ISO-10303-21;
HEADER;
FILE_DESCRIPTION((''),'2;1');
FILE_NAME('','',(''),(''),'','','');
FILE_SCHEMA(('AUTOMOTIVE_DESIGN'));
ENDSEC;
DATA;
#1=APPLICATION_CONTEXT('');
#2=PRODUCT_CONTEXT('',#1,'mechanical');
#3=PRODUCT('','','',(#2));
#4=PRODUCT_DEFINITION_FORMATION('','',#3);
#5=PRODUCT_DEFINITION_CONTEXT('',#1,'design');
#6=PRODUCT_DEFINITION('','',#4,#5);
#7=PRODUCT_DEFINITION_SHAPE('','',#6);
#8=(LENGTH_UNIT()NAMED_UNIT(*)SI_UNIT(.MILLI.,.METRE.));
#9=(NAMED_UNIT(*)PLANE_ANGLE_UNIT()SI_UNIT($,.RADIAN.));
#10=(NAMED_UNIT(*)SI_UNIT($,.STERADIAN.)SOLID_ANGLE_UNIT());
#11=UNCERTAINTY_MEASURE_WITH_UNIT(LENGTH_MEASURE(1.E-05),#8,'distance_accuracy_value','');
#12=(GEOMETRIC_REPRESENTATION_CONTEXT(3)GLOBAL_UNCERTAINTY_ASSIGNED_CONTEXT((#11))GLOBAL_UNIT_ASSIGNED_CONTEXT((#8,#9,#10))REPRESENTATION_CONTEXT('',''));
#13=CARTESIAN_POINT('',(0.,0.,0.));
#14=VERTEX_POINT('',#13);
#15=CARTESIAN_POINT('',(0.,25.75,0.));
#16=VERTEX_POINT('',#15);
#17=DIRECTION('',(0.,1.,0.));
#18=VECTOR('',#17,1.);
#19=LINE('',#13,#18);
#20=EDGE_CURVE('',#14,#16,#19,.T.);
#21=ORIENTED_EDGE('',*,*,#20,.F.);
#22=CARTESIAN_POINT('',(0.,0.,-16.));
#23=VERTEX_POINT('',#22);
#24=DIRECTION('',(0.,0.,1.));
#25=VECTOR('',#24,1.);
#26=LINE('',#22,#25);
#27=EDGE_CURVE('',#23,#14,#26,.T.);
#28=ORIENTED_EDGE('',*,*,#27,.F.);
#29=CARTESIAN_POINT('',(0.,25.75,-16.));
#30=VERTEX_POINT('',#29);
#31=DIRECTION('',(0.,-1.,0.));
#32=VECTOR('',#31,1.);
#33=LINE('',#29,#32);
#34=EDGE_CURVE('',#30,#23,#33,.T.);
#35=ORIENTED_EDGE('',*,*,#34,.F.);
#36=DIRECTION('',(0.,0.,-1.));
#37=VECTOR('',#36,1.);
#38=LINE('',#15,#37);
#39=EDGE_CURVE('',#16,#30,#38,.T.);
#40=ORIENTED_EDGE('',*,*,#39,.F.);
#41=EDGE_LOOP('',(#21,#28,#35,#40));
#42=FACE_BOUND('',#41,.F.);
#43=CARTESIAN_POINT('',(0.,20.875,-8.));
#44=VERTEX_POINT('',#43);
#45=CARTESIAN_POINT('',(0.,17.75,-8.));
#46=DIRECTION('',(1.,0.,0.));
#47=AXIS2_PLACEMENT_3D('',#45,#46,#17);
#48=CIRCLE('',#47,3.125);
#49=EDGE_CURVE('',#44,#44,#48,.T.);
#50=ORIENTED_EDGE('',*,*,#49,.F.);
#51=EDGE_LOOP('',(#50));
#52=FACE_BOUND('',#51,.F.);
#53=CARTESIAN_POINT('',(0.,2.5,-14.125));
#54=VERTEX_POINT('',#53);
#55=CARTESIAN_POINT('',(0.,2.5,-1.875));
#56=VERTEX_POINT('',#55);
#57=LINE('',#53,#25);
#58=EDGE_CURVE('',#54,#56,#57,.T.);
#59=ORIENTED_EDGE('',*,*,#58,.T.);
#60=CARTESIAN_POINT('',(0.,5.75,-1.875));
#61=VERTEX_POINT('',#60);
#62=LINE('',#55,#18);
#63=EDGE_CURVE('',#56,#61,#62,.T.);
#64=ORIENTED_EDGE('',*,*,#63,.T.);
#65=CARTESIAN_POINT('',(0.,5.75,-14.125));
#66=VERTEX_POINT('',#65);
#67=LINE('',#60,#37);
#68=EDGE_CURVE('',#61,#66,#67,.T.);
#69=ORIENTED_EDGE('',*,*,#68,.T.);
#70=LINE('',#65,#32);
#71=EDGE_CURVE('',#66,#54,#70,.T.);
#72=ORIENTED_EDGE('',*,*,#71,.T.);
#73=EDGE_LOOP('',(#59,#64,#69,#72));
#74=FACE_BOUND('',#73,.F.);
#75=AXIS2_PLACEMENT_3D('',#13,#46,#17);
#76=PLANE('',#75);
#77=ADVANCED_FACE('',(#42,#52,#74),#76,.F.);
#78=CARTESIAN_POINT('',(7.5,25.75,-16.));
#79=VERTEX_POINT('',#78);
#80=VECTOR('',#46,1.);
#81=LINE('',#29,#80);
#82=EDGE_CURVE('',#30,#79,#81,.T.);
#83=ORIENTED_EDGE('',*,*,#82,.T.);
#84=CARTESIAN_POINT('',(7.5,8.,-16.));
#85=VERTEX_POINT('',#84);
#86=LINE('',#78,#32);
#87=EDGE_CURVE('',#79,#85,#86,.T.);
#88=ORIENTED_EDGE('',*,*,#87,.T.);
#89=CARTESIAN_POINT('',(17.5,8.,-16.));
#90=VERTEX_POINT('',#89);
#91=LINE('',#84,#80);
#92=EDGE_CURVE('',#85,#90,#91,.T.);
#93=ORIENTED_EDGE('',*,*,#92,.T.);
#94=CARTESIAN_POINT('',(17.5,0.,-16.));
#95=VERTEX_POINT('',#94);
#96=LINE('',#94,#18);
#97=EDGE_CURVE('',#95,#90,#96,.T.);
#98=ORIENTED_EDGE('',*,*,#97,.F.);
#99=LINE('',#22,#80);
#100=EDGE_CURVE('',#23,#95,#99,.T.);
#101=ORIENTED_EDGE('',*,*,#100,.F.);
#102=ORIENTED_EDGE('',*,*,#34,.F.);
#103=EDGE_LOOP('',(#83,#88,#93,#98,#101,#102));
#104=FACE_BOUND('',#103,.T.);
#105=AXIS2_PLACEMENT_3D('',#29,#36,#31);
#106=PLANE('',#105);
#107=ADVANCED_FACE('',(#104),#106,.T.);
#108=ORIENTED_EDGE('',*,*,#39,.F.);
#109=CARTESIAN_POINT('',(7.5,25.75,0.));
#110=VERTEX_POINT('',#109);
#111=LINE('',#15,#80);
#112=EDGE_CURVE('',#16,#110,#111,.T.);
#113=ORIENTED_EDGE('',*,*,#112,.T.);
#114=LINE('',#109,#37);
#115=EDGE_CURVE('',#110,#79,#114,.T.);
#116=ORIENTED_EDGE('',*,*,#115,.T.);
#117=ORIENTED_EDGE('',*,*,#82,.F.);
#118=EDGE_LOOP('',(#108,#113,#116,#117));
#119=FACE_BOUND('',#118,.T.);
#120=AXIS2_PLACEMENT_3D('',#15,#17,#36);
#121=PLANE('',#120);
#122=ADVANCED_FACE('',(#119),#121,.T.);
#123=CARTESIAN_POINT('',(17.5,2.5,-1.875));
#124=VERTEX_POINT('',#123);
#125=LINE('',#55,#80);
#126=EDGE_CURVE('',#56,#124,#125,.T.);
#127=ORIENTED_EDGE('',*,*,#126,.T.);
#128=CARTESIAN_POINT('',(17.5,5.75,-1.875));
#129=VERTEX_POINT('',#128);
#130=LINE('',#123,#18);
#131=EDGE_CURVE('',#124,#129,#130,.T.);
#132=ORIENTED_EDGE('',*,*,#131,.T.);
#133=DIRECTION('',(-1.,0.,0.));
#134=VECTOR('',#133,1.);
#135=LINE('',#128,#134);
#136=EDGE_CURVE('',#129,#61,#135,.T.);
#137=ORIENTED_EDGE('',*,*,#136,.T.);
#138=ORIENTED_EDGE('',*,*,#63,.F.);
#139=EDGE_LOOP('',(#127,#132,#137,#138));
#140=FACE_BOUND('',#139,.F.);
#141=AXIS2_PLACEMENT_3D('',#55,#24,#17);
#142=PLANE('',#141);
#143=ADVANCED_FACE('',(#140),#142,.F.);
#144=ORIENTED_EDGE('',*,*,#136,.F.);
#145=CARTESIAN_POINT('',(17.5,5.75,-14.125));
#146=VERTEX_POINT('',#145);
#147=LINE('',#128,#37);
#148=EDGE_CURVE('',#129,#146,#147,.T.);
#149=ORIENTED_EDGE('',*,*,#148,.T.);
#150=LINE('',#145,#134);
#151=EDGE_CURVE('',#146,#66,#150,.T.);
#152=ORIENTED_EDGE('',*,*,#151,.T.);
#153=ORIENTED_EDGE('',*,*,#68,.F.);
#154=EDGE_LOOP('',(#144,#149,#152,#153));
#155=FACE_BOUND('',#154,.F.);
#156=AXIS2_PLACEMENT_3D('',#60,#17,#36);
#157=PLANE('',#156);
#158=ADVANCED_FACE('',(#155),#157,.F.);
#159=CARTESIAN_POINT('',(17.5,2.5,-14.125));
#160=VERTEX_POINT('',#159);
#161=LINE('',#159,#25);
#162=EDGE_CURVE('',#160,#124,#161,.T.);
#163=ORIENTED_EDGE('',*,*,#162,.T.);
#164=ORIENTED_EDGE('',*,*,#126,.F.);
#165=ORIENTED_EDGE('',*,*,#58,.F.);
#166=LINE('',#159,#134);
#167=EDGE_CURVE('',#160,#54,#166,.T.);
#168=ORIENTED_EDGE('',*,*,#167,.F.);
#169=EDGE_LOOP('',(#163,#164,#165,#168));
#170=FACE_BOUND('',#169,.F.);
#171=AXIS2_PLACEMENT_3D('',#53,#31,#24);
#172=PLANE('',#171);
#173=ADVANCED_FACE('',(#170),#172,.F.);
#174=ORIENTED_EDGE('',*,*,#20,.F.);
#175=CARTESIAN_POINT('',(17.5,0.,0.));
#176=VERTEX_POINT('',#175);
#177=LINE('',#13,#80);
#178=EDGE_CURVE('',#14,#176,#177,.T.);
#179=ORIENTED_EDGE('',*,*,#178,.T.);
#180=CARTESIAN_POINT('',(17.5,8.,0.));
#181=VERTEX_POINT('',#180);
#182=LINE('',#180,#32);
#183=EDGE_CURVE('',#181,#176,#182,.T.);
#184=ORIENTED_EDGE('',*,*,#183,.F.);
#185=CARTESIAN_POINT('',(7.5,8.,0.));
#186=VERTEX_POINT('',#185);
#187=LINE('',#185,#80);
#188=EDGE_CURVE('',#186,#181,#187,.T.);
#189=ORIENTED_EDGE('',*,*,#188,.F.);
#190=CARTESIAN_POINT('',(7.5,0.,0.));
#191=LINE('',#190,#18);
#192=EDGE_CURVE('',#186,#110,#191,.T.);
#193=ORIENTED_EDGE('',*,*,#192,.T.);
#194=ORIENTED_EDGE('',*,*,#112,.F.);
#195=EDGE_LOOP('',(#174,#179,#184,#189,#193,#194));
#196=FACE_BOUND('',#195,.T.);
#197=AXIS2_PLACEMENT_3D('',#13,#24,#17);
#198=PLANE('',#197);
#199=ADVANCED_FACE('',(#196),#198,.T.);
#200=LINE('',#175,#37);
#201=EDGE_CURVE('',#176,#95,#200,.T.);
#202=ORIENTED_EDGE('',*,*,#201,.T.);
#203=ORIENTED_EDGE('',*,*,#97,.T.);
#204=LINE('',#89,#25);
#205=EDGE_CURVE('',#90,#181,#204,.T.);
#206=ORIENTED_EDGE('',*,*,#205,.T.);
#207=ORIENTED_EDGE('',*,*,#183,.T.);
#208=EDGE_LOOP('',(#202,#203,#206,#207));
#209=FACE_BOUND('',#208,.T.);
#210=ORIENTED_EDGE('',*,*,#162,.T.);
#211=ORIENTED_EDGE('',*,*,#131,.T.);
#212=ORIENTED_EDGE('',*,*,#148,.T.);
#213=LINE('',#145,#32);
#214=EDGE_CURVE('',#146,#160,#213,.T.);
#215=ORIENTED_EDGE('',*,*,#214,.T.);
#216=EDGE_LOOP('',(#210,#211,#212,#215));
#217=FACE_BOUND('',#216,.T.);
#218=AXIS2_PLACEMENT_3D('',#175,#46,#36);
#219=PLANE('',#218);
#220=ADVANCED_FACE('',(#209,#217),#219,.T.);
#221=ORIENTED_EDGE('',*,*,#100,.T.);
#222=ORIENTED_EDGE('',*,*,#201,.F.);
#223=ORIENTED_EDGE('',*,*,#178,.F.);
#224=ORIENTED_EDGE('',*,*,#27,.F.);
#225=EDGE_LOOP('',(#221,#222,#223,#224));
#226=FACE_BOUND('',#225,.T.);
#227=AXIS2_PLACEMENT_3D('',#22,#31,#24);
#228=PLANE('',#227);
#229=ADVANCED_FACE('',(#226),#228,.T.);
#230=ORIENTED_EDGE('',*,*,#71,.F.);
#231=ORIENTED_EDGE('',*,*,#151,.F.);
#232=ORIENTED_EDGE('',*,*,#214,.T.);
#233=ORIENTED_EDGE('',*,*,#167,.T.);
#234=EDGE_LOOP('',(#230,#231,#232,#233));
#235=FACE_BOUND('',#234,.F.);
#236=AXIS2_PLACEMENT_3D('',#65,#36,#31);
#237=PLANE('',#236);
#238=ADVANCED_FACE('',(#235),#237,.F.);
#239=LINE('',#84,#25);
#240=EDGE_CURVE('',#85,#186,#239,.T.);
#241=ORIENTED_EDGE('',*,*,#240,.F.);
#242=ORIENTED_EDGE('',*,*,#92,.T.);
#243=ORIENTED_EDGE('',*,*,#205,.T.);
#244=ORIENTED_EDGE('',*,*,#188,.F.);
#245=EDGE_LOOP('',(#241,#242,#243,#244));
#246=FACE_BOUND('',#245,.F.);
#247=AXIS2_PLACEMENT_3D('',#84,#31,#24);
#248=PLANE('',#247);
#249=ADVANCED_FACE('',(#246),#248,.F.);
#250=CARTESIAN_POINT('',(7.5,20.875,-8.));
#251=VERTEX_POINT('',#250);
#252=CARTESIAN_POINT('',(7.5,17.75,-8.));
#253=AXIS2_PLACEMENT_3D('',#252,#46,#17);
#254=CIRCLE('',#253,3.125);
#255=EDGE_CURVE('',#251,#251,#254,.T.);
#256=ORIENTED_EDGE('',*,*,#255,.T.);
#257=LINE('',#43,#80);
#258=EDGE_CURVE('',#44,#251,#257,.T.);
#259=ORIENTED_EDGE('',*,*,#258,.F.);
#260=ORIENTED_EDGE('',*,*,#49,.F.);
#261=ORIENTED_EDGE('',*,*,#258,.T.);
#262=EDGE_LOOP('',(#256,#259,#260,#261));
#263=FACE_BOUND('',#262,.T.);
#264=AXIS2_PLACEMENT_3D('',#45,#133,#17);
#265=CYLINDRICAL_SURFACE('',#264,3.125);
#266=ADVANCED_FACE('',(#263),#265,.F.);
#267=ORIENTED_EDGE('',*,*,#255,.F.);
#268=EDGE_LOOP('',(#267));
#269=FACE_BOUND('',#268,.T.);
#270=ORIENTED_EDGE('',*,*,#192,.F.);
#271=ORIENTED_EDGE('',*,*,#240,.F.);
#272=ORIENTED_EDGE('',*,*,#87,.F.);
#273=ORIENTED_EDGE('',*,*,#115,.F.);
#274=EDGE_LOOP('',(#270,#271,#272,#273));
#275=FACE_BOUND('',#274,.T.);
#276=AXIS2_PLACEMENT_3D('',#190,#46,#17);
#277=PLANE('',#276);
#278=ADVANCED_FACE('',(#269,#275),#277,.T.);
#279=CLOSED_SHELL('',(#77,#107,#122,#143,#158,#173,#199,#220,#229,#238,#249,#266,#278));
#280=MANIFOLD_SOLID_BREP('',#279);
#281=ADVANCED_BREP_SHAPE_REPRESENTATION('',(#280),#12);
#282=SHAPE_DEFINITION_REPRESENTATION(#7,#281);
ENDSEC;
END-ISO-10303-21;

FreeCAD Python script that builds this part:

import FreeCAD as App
import Part
import Sketcher
from FreeCAD import Vector
Q = App.Units.Quantity

doc = App.newDocument("Part")
body = doc.addObject("PartDesign::Body", "Body")

sketch1 = doc.addObject("Sketcher::SketchObject", "Sketch")
body.addObject(sketch1)
sketch1.AttachmentSupport = (doc.YZ_Plane, [""])
sketch1.MapMode = "FlatFace"
sketch1.addGeometry([
    Part.LineSegment(Vector(25.8, 0, 0), Vector(0, 0, 0)),
    Part.LineSegment(Vector(0, 0, 0), Vector(0, -16, 0)),
    Part.LineSegment(Vector(0, -16, 0), Vector(25.8, -16, 0)),
    Part.LineSegment(Vector(25.8, -16, 0), Vector(25.8, 0, 0)),
    Part.LineSegment(Vector(2.5, -14.1, 0), Vector(2.5, -1.9, 0)),
    Part.LineSegment(Vector(2.5, -1.9, 0), Vector(5.8, -1.9, 0)),
    Part.LineSegment(Vector(5.8, -1.9, 0), Vector(5.8, -14.1, 0)),
    Part.LineSegment(Vector(5.8, -14.1, 0), Vector(2.5, -14.1, 0)),
    Part.Circle(Vector(17.8, -8, 0), Vector(0, 0, 1), 3.1),
], False)
sketch1.addConstraint([
    Sketcher.Constraint("Coincident", 0, 2, 1, 1),
    Sketcher.Constraint("Coincident", 1, 2, 2, 1),
    Sketcher.Constraint("Coincident", 2, 2, 3, 1),
    Sketcher.Constraint("Coincident", 3, 2, 0, 1),
    Sketcher.Constraint("Coincident", 4, 2, 5, 1),
    Sketcher.Constraint("Coincident", 5, 2, 6, 1),
    Sketcher.Constraint("Coincident", 6, 2, 7, 1),
    Sketcher.Constraint("Coincident", 7, 2, 4, 1),
    Sketcher.Constraint("Horizontal", 0),
    Sketcher.Constraint("Vertical", 1),
    Sketcher.Constraint("Horizontal", 2),
    Sketcher.Constraint("Vertical", 3),
    Sketcher.Constraint("Vertical", 4),
    Sketcher.Constraint("Horizontal", 5),
    Sketcher.Constraint("Vertical", 6),
    Sketcher.Constraint("Horizontal", 7),
    Sketcher.Constraint("Coincident", 0, 2, -1, 1),
    Sketcher.Constraint("Diameter", 8, Q("6.25 mm")),
    Sketcher.Constraint("DistanceY", 1, 2, 1, 1, Q("16 mm")),
    Sketcher.Constraint("DistanceX", 0, 2, 0, 1, Q("25.75 mm")),
    Sketcher.Constraint("DistanceX", 5, 1, 5, 2, Q("3.25 mm")),
    Sketcher.Constraint("DistanceX", -1, 1, 4, 2, Q("2.5 mm")),
    Sketcher.Constraint("DistanceY", 8, 3, -1, 1, Q("8 mm")),
    Sketcher.Constraint("DistanceY", 4, 2, -1, 1, Q("1.875 mm")),
    Sketcher.Constraint("DistanceX", 8, 3, 2, 2, Q("8 mm")),
    Sketcher.Constraint("DistanceY", 1, 2, 6, 2, Q("1.875 mm")),
])
pad1 = doc.addObject("PartDesign::Pad", "Pad")
body.addObject(pad1)
pad1.Profile = sketch1
pad1.Length = 7.5

sketch2 = doc.addObject("Sketcher::SketchObject", "Sketch001")
body.addObject(sketch2)
sketch2.AttachmentSupport = (doc.YZ_Plane, [""])
sketch2.MapMode = "FlatFace"
sketch2.AttachmentOffset = App.Placement(Vector(0, 0, 7.5), App.Rotation())
sketch2.addGeometry([
    Part.LineSegment(Vector(8, 0, 0), Vector(0, 0, 0)),
    Part.LineSegment(Vector(0, 0, 0), Vector(0, -16, 0)),
    Part.LineSegment(Vector(0, -16, 0), Vector(8, -16, 0)),
    Part.LineSegment(Vector(8, -16, 0), Vector(8, 0, 0)),
    Part.LineSegment(Vector(2.5, -14.1, 0), Vector(2.5, -1.9, 0)),
    Part.LineSegment(Vector(2.5, -1.9, 0), Vector(5.8, -1.9, 0)),
    Part.LineSegment(Vector(5.8, -1.9, 0), Vector(5.8, -14.1, 0)),
    Part.LineSegment(Vector(5.8, -14.1, 0), Vector(2.5, -14.1, 0)),
], False)
sketch2.addConstraint([
    Sketcher.Constraint("Coincident", 0, 2, 1, 1),
    Sketcher.Constraint("Coincident", 1, 2, 2, 1),
    Sketcher.Constraint("Coincident", 2, 2, 3, 1),
    Sketcher.Constraint("Coincident", 3, 2, 0, 1),
    Sketcher.Constraint("Coincident", 4, 2, 5, 1),
    Sketcher.Constraint("Coincident", 5, 2, 6, 1),
    Sketcher.Constraint("Coincident", 6, 2, 7, 1),
    Sketcher.Constraint("Coincident", 7, 2, 4, 1),
    Sketcher.Constraint("Horizontal", 0),
    Sketcher.Constraint("Vertical", 1),
    Sketcher.Constraint("Horizontal", 2),
    Sketcher.Constraint("Vertical", 3),
    Sketcher.Constraint("Vertical", 4),
    Sketcher.Constraint("Horizontal", 5),
    Sketcher.Constraint("Vertical", 6),
    Sketcher.Constraint("Horizontal", 7),
    Sketcher.Constraint("Coincident", 0, 2, -1, 1),
    Sketcher.Constraint("DistanceX", 0, 2, 0, 1, Q("8 mm")),
    Sketcher.Constraint("DistanceY", 1, 2, 1, 1, Q("16 mm")),
    Sketcher.Constraint("DistanceX", 5, 1, 5, 2, Q("3.25 mm")),
    Sketcher.Constraint("DistanceY", 4, 1, 4, 2, Q("12.25 mm")),
    Sketcher.Constraint("DistanceX", -1, 1, 4, 2, Q("2.5 mm")),
    Sketcher.Constraint("DistanceY", 4, 2, -1, 1, Q("1.875 mm")),
])
pad2 = doc.addObject("PartDesign::Pad", "Pad001")
body.addObject(pad2)
pad2.Profile = sketch2
pad2.Length = 10

doc.recompute()
